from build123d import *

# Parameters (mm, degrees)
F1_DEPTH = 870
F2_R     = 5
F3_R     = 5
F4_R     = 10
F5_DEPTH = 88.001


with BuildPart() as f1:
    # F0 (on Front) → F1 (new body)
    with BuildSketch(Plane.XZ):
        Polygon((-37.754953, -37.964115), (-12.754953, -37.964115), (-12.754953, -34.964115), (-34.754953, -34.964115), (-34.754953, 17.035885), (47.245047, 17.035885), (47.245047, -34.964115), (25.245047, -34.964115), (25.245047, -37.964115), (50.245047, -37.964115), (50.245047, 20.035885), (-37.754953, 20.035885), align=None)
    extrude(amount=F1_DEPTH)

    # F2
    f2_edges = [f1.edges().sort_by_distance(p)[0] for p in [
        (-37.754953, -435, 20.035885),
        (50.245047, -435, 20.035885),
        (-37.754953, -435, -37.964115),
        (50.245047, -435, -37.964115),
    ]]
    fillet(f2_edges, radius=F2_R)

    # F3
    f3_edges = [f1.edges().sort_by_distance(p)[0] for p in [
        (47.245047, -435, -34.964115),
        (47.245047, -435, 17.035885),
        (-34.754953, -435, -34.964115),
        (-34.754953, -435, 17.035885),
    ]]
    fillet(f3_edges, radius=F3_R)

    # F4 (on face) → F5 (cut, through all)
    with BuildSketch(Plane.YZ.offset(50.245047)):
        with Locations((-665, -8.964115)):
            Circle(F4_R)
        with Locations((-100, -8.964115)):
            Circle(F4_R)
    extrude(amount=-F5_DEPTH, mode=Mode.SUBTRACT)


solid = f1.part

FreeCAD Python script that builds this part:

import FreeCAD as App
import Part
import Sketcher
from FreeCAD import Vector
Q = App.Units.Quantity


def edges_at(feature, points):
    """Names of the edges that pass closest to the given points."""
    edges = feature.Shape.Edges
    near = lambda p: min(range(len(edges)), key=lambda i: edges[i].distToShape(Part.Vertex(*p))[0])
    return sorted({f"Edge{near(p) + 1}" for p in points})

doc = App.newDocument("Part")
body = doc.addObject("PartDesign::Body", "Body")

# Sketch on XZ plane
sketch1 = body.newObject("Sketcher::SketchObject", "Sketch")
sketch1.AttachmentSupport = (doc.getObject("XZ_Plane"), [""])
sketch1.MapMode = "FlatFace"
sketch1.addGeometry(Part.LineSegment(Vector(-37.8, -38, 0), Vector(-12.8, -38, 0)), False)
sketch1.addGeometry(Part.LineSegment(Vector(-12.8, -38, 0), Vector(-12.8, -35, 0)), False)
sketch1.addGeometry(Part.LineSegment(Vector(-12.8, -35, 0), Vector(-34.8, -35, 0)), False)
sketch1.addGeometry(Part.LineSegment(Vector(-34.8, -35, 0), Vector(-34.8, 17, 0)), False)
sketch1.addGeometry(Part.LineSegment(Vector(-34.8, 17, 0), Vector(47.2, 17, 0)), False)
sketch1.addGeometry(Part.LineSegment(Vector(47.2, 17, 0), Vector(47.2, -35, 0)), False)
sketch1.addGeometry(Part.LineSegment(Vector(47.2, -35, 0), Vector(25.2, -35, 0)), False)
sketch1.addGeometry(Part.LineSegment(Vector(25.2, -35, 0), Vector(25.2, -38, 0)), False)
sketch1.addGeometry(Part.LineSegment(Vector(25.2, -38, 0), Vector(50.2, -38, 0)), False)
sketch1.addGeometry(Part.LineSegment(Vector(50.2, -38, 0), Vector(50.2, 20, 0)), False)
sketch1.addGeometry(Part.LineSegment(Vector(50.2, 20, 0), Vector(-37.8, 20, 0)), False)
sketch1.addGeometry(Part.LineSegment(Vector(-37.8, 20, 0), Vector(-37.8, -38, 0)), False)
sketch1.addConstraint(Sketcher.Constraint("Coincident", 0, 2, 1, 1))
sketch1.addConstraint(Sketcher.Constraint("Coincident", 1, 2, 2, 1))
sketch1.addConstraint(Sketcher.Constraint("Coincident", 2, 2, 3, 1))
sketch1.addConstraint(Sketcher.Constraint("Coincident", 3, 2, 4, 1))
sketch1.addConstraint(Sketcher.Constraint("Coincident", 4, 2, 5, 1))
sketch1.addConstraint(Sketcher.Constraint("Coincident", 5, 2, 6, 1))
sketch1.addConstraint(Sketcher.Constraint("Coincident", 6, 2, 7, 1))
sketch1.addConstraint(Sketcher.Constraint("Coincident", 7, 2, 8, 1))
sketch1.addConstraint(Sketcher.Constraint("Coincident", 8, 2, 9, 1))
sketch1.addConstraint(Sketcher.Constraint("Coincident", 9, 2, 10, 1))
sketch1.addConstraint(Sketcher.Constraint("Coincident", 10, 2, 11, 1))
sketch1.addConstraint(Sketcher.Constraint("Coincident", 11, 2, 0, 1))
sketch1.addConstraint(Sketcher.Constraint("Horizontal", 0))
sketch1.addConstraint(Sketcher.Constraint("Vertical", 1))
sketch1.addConstraint(Sketcher.Constraint("Horizontal", 2))
sketch1.addConstraint(Sketcher.Constraint("Vertical", 3))
sketch1.addConstraint(Sketcher.Constraint("Horizontal", 4))
sketch1.addConstraint(Sketcher.Constraint("Vertical", 5))
sketch1.addConstraint(Sketcher.Constraint("Horizontal", 6))
sketch1.addConstraint(Sketcher.Constraint("Vertical", 7))
sketch1.addConstraint(Sketcher.Constraint("Horizontal", 8))
sketch1.addConstraint(Sketcher.Constraint("Vertical", 9))
sketch1.addConstraint(Sketcher.Constraint("Horizontal", 10))
sketch1.addConstraint(Sketcher.Constraint("Vertical", 11))
sketch1.addConstraint(Sketcher.Constraint("Horizontal", 2, 2, 5, 2))
sketch1.addConstraint(Sketcher.Constraint("Horizontal", 0, 2, 7, 2))
sketch1.addConstraint(Sketcher.Constraint("Equal", 2, 6))
sketch1.addConstraint(Sketcher.Constraint("Equal", 0, 8))
sketch1.addConstraint(Sketcher.Constraint("DistanceX", 0, 1, 0, 2, Q("25 mm")))
sketch1.addConstraint(Sketcher.Constraint("DistanceX", 2, 2, 2, 1, Q("22 mm")))
sketch1.addConstraint(Sketcher.Constraint("DistanceX", 4, 1, 4, 2, Q("82 mm")))
sketch1.addConstraint(Sketcher.Constraint("DistanceY", 1, 1, 1, 2, Q("3 mm")))
sketch1.addConstraint(Sketcher.Constraint("DistanceY", 3, 1, 3, 2, Q("52 mm")))
sketch1.addConstraint(Sketcher.Constraint("DistanceY", 9, 1, 9, 2, Q("58 mm")))
sketch1.addConstraint(Sketcher.Constraint("DistanceX", 0, 2, -1, 1, Q("12.754953 mm")))
sketch1.addConstraint(Sketcher.Constraint("DistanceY", 0, 2, -1, 1, Q("37.964115 mm")))
pad1 = body.newObject("PartDesign::Pad", "Pad")
pad1.Profile = sketch1
pad1.Length = 870
doc.recompute()

fillet = body.newObject("PartDesign::Fillet", "Fillet")
fillet.Base = (pad1, edges_at(pad1, [
    (-37.755, -435, 20.036),
    (50.245, -435, 20.036),
    (-37.755, -435, -37.964),
    (50.245, -435, -37.964),
]))
fillet.Radius = 5
doc.recompute()

fillet2 = body.newObject("PartDesign::Fillet", "Fillet001")
fillet2.Base = (fillet, edges_at(fillet, [
    (47.245, -435, -34.964),
    (47.245, -435, 17.036),
    (-34.755, -435, -34.964),
    (-34.755, -435, 17.036),
]))
fillet2.Radius = 5

# Sketch on YZ plane
sketch2 = body.newObject("Sketcher::SketchObject", "Sketch001")
sketch2.AttachmentSupport = (doc.getObject("YZ_Plane"), [""])
sketch2.MapMode = "FlatFace"
sketch2.AttachmentOffset = App.Placement(Vector(0, 0, 50.245047), App.Rotation())
sketch2.addGeometry(Part.Circle(Vector(-665, -9, 0), Vector(0, 0, 1), 10), False)
sketch2.addGeometry(Part.Circle(Vector(-100, -9, 0), Vector(0, 0, 1), 10), False)
sketch2.addConstraint(Sketcher.Constraint("Equal", 0, 1))
sketch2.addConstraint(Sketcher.Constraint("Horizontal", 0, 3, 1, 3))
sketch2.addConstraint(Sketcher.Constraint("Diameter", 0, Q("20 mm")))
sketch2.addConstraint(Sketcher.Constraint("DistanceX", 0, 3, -1, 1, Q("665 mm")))
sketch2.addConstraint(Sketcher.Constraint("DistanceX", 1, 3, -1, 1, Q("100 mm")))
sketch2.addConstraint(Sketcher.Constraint("DistanceY", 0, 3, -1, 1, Q("8.964115 mm")))
pocket1 = body.newObject("PartDesign::Pocket", "Pocket")
pocket1.Profile = sketch2
pocket1.Type = "ThroughAll"

doc.recompute()
